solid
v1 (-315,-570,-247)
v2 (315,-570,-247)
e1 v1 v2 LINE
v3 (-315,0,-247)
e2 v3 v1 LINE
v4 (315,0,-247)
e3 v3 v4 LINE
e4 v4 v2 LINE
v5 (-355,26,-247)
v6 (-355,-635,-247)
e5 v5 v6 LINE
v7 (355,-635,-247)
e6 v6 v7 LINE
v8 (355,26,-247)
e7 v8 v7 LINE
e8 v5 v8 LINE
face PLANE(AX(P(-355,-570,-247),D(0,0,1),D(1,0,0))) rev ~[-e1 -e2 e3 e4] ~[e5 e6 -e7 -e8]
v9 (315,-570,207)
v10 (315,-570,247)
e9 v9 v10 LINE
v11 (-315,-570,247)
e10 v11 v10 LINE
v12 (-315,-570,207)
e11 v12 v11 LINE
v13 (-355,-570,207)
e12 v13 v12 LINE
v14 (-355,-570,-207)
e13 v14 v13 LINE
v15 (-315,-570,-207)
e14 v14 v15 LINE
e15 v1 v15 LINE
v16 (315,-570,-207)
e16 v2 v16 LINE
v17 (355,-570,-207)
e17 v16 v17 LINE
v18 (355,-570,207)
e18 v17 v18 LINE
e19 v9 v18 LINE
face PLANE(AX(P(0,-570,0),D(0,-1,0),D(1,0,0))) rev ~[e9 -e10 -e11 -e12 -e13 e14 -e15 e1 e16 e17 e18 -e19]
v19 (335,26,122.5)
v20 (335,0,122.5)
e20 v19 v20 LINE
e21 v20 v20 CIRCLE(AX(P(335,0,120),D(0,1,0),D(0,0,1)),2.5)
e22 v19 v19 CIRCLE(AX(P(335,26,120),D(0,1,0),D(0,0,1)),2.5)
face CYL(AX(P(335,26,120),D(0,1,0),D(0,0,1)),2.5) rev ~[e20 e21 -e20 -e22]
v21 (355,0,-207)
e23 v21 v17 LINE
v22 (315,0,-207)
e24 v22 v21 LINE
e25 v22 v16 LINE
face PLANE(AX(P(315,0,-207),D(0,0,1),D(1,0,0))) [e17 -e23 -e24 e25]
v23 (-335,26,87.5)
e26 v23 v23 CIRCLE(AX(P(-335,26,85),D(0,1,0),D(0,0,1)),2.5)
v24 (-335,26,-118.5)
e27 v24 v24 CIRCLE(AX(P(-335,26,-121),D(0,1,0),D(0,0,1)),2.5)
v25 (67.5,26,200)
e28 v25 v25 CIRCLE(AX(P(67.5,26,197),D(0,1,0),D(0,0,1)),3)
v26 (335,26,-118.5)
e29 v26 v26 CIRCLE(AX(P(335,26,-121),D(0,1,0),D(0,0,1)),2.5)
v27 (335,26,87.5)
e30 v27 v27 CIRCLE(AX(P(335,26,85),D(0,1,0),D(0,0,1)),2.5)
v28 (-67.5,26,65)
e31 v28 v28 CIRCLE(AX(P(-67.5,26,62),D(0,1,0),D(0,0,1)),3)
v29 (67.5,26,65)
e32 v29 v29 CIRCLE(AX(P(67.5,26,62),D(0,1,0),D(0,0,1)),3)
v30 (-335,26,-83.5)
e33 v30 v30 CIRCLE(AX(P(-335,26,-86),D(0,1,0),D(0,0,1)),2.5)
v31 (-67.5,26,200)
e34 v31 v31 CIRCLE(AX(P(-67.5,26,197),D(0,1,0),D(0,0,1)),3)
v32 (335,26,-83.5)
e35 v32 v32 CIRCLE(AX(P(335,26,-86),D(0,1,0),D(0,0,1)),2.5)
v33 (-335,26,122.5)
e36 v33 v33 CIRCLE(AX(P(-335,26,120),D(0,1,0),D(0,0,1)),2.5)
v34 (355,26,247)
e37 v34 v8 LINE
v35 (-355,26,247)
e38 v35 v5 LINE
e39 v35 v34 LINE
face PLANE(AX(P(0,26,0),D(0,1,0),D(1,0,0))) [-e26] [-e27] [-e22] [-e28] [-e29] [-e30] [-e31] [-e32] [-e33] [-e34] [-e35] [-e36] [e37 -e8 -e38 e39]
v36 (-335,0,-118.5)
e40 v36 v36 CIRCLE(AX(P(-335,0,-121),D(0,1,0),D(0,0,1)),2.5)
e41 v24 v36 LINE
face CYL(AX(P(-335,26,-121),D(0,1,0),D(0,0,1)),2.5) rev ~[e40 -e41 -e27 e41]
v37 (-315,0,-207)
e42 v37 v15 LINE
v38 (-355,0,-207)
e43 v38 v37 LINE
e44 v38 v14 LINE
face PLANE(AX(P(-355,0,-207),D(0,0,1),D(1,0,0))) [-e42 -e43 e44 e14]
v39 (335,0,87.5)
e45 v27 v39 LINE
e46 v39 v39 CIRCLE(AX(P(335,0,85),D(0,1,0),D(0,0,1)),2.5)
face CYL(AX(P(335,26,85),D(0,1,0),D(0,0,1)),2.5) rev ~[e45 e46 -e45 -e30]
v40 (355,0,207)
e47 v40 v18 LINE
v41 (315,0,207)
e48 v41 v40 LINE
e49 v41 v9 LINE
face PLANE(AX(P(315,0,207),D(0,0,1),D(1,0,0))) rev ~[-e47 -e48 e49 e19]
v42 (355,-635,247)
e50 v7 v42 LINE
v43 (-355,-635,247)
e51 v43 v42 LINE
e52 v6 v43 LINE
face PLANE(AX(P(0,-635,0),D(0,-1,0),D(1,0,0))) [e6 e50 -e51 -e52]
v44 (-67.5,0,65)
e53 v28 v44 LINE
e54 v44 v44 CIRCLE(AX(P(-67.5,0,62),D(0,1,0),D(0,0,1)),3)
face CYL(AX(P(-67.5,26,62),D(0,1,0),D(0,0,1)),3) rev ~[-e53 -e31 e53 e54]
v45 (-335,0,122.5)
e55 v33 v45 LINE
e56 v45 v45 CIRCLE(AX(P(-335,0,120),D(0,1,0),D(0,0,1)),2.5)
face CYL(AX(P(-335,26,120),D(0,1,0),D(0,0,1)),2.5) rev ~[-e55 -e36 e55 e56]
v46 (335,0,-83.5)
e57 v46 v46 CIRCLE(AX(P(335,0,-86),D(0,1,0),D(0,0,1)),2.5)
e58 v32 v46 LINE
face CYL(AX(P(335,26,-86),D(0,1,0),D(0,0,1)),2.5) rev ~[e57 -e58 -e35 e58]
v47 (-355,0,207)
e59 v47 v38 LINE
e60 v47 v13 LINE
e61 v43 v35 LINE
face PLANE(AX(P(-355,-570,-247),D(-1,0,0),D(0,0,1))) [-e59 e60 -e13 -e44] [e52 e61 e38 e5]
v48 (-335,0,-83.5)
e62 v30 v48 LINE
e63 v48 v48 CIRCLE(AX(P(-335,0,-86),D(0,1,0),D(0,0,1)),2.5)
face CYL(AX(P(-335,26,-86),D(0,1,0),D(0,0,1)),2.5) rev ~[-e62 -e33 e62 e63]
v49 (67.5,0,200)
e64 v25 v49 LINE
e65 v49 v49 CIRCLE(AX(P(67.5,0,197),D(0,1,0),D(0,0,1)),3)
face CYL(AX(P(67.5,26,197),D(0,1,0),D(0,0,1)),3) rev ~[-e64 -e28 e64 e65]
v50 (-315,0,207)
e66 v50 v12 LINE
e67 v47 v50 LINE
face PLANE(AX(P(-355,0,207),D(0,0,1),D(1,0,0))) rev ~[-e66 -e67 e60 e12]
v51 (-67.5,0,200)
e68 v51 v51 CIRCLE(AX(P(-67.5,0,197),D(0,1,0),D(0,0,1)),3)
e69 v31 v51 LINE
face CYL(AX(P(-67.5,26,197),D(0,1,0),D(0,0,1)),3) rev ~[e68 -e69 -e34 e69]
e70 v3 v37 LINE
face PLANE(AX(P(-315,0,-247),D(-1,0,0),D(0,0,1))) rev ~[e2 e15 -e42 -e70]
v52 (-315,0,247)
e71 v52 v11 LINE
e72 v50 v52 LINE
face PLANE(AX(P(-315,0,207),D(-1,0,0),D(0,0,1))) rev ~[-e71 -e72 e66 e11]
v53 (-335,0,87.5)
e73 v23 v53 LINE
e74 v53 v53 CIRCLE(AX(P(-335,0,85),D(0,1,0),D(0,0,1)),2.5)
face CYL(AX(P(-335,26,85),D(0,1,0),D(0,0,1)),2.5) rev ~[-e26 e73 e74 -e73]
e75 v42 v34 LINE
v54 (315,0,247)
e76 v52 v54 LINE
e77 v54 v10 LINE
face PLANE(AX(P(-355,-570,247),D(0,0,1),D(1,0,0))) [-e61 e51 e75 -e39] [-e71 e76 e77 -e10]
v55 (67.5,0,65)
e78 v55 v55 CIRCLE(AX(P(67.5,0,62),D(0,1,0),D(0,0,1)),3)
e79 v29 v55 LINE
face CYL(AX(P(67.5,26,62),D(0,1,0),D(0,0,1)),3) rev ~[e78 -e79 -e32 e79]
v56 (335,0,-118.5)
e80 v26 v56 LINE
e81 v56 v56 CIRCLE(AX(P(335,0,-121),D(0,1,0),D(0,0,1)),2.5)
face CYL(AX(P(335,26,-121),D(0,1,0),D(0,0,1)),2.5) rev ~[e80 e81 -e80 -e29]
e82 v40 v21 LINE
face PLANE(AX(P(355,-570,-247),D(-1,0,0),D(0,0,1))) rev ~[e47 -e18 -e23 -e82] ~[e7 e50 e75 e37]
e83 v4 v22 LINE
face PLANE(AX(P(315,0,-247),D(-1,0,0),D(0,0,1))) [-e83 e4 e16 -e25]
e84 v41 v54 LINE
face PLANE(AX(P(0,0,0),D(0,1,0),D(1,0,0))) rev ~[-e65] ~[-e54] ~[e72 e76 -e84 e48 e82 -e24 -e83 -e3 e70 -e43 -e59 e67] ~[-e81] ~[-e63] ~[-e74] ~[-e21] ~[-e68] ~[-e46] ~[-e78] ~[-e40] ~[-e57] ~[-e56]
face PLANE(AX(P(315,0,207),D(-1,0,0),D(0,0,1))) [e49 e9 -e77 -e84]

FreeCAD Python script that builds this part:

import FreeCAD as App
import Part
import Sketcher

V = App.Vector


def add_polygon(sketch, points):
    """Adds a closed chain of lines whose ends are joined by coincident constraints."""
    first, n = sketch.GeometryCount, len(points)
    for a, b in zip(points, points[1:] + points[:1]):
        sketch.addGeometry(Part.LineSegment(App.Vector(*a, 0), App.Vector(*b, 0)), False)
    for i in range(n):
        sketch.addConstraint(Sketcher.Constraint("Coincident", first + i, 2, first + (i + 1) % n, 1))

doc = App.newDocument("Part")
body = doc.addObject("PartDesign::Body", "Body")

sketch1 = body.newObject("Sketcher::SketchObject", "Sketch")
sketch1.AttachmentSupport = (doc.getObject("XZ_Plane"), [""])
sketch1.MapMode = "FlatFace"
add_polygon(sketch1, [(-355, -247), (-355, 247), (355, 247), (355, -247)])
sketch1.addConstraint([
    Sketcher.Constraint("Vertical", 0),
    Sketcher.Constraint("Horizontal", 1),
    Sketcher.Constraint("Vertical", 2),
    Sketcher.Constraint("Horizontal", 3),
    Sketcher.Constraint("Symmetric", 0, 2, 2, 2, -1, 1),
    Sketcher.Constraint("DistanceX", 1, 1, 1, 2, 710.0),
    Sketcher.Constraint("DistanceY", 0, 1, 0, 2, 494.0),
])
pad1 = body.newObject("PartDesign::Pad", "Pad")
pad1.Profile = sketch1
pad1.Length = 26
pad1.Reversed = True

sketch2 = body.newObject("Sketcher::SketchObject", "Sketch001")
sketch2.AttachmentSupport = (doc.getObject("XZ_Plane"), [""])
sketch2.MapMode = "FlatFace"
sketch2.AttachmentOffset = App.Placement(V(0, 0, -26), App.Rotation())
sketch2.addGeometry([
    Part.Circle(V(-67.5, 62, 0), V(0, 0, 1), 3),
    Part.Circle(V(-67.5, 197, 0), V(0, 0, 1), 3),
    Part.Circle(V(67.5, 197, 0), V(0, 0, 1), 3),
    Part.Circle(V(67.5, 62, 0), V(0, 0, 1), 3),
], False)
sketch2.addConstraint([
    Sketcher.Constraint("Equal", 0, 1),
    Sketcher.Constraint("Equal", 1, 2),
    Sketcher.Constraint("Equal", 2, 3),
    Sketcher.Constraint("Symmetric", 1, 3, 2, 3, -2),
    Sketcher.Constraint("Symmetric", 0, 3, 3, 3, -2),
    Sketcher.Constraint("Vertical", 0, 3, 1, 3),
    Sketcher.Constraint("Diameter", 0, 6.0),
    Sketcher.Constraint("DistanceY", -1, 1, 0, 3, 62.0),
    Sketcher.Constraint("DistanceY", -1, 1, 1, 3, 197.0),
    Sketcher.Constraint("DistanceX", 1, 3, 2, 3, 135.0),
])
pocket1 = body.newObject("PartDesign::Pocket", "Pocket")
pocket1.Profile = sketch2
pocket1.Type = "ThroughAll"
pocket1.Reversed = True

sketch3 = body.newObject("Sketcher::SketchObject", "Sketch002")
sketch3.AttachmentSupport = (doc.getObject("XZ_Plane"), [""])
sketch3.MapMode = "FlatFace"
sketch3.AttachmentOffset = App.Placement(V(0, 0, -26), App.Rotation())
sketch3.addGeometry(Part.Circle(V(-335, -121, 0), V(0, 0, 1), 2.5), False)
sketch3.addConstraint([
    Sketcher.Constraint("Diameter", 0, 5.0),
    Sketcher.Constraint("DistanceX", 0, 3, -1, 1, 335.0),
    Sketcher.Constraint("DistanceY", 0, 3, -1, 1, 121.0),
])
pocket2 = body.newObject("PartDesign::Pocket", "Pocket001")
pocket2.Profile = sketch3
pocket2.Type = "UpToFirst"
pocket2.Reversed = True

sketch4 = body.newObject("Sketcher::SketchObject", "Sketch003")
sketch4.AttachmentSupport = (doc.getObject("XZ_Plane"), [""])
sketch4.MapMode = "FlatFace"
sketch4.AttachmentOffset = App.Placement(V(0, 0, -26), App.Rotation())
sketch4.addGeometry(Part.Circle(V(-335, -86, 0), V(0, 0, 1), 2.5), False)
sketch4.addConstraint([
    Sketcher.Constraint("Diameter", 0, 5.0),
    Sketcher.Constraint("DistanceX", 0, 3, -1, 1, 335.0),
    Sketcher.Constraint("DistanceY", 0, 3, -1, 1, 86.0),
])
pocket3 = body.newObject("PartDesign::Pocket", "Pocket002")
pocket3.Profile = sketch4
pocket3.Type = "UpToFirst"
pocket3.Reversed = True

sketch5 = body.newObject("Sketcher::SketchObject", "Sketch004")
sketch5.AttachmentSupport = (doc.getObject("XZ_Plane"), [""])
sketch5.MapMode = "FlatFace"
sketch5.AttachmentOffset = App.Placement(V(0, 0, -26), App.Rotation())
sketch5.addGeometry(Part.Circle(V(335, -86, 0), V(0, 0, 1), 2.5), False)
sketch5.addConstraint([
    Sketcher.Constraint("Diameter", 0, 5.0),
    Sketcher.Constraint("DistanceX", -1, 1, 0, 3, 335.0),
    Sketcher.Constraint("DistanceY", 0, 3, -1, 1, 86.0),
])
pocket4 = body.newObject("PartDesign::Pocket", "Pocket003")
pocket4.Profile = sketch5
pocket4.Type = "UpToFirst"
pocket4.Reversed = True

sketch6 = body.newObject("Sketcher::SketchObject", "Sketch005")
sketch6.AttachmentSupport = (doc.getObject("XZ_Plane"), [""])
sketch6.MapMode = "FlatFace"
sketch6.AttachmentOffset = App.Placement(V(0, 0, -26), App.Rotation())
sketch6.addGeometry(Part.Circle(V(335, -121, 0), V(0, 0, 1), 2.5), False)
sketch6.addConstraint([
    Sketcher.Constraint("Diameter", 0, 5.0),
    Sketcher.Constraint("DistanceX", -1, 1, 0, 3, 335.0),
    Sketcher.Constraint("DistanceY", 0, 3, -1, 1, 121.0),
])
pocket5 = body.newObject("PartDesign::Pocket", "Pocket004")
pocket5.Profile = sketch6
pocket5.Type = "UpToFirst"
pocket5.Reversed = True

sketch7 = body.newObject("Sketcher::SketchObject", "Sketch006")
sketch7.AttachmentSupport = (doc.getObject("XZ_Plane"), [""])
sketch7.MapMode = "FlatFace"
sketch7.AttachmentOffset = App.Placement(V(0, 0, -26), App.Rotation())
sketch7.addGeometry(Part.Circle(V(335, 85, 0), V(0, 0, 1), 2.5), False)
sketch7.addConstraint([
    Sketcher.Constraint("Diameter", 0, 5.0),
    Sketcher.Constraint("DistanceX", -1, 1, 0, 3, 335.0),
    Sketcher.Constraint("DistanceY", -1, 1, 0, 3, 85.0),
])
pocket6 = body.newObject("PartDesign::Pocket", "Pocket005")
pocket6.Profile = sketch7
pocket6.Type = "UpToFirst"
pocket6.Reversed = True

sketch8 = body.newObject("Sketcher::SketchObject", "Sketch007")
sketch8.AttachmentSupport = (doc.getObject("XZ_Plane"), [""])
sketch8.MapMode = "FlatFace"
sketch8.AttachmentOffset = App.Placement(V(0, 0, -26), App.Rotation())
sketch8.addGeometry(Part.Circle(V(335, 120, 0), V(0, 0, 1), 2.5), False)
sketch8.addConstraint([
    Sketcher.Constraint("Diameter", 0, 5.0),
    Sketcher.Constraint("DistanceX", -1, 1, 0, 3, 335.0),
    Sketcher.Constraint("DistanceY", -1, 1, 0, 3, 120.0),
])
pocket7 = body.newObject("PartDesign::Pocket", "Pocket006")
pocket7.Profile = sketch8
pocket7.Type = "UpToFirst"
pocket7.Reversed = True

sketch9 = body.newObject("Sketcher::SketchObject", "Sketch008")
sketch9.AttachmentSupport = (doc.getObject("XZ_Plane"), [""])
sketch9.MapMode = "FlatFace"
sketch9.AttachmentOffset = App.Placement(V(0, 0, -26), App.Rotation())
sketch9.addGeometry(Part.Circle(V(-335, 85, 0), V(0, 0, 1), 2.5), False)
sketch9.addConstraint([
    Sketcher.Constraint("Diameter", 0, 5.0),
    Sketcher.Constraint("DistanceX", 0, 3, -1, 1, 335.0),
    Sketcher.Constraint("DistanceY", -1, 1, 0, 3, 85.0),
])
pocket8 = body.newObject("PartDesign::Pocket", "Pocket007")
pocket8.Profile = sketch9
pocket8.Type = "UpToFirst"
pocket8.Reversed = True

sketch10 = body.newObject("Sketcher::SketchObject", "Sketch009")
sketch10.AttachmentSupport = (doc.getObject("XZ_Plane"), [""])
sketch10.MapMode = "FlatFace"
sketch10.AttachmentOffset = App.Placement(V(0, 0, -26), App.Rotation())
sketch10.addGeometry(Part.Circle(V(-335, 120, 0), V(0, 0, 1), 2.5), False)
sketch10.addConstraint([
    Sketcher.Constraint("Diameter", 0, 5.0),
    Sketcher.Constraint("DistanceX", 0, 3, -1, 1, 335.0),
    Sketcher.Constraint("DistanceY", -1, 1, 0, 3, 120.0),
])
pocket9 = body.newObject("PartDesign::Pocket", "Pocket008")
pocket9.Profile = sketch10
pocket9.Type = "UpToFirst"
pocket9.Reversed = True

sketch11 = body.newObject("Sketcher::SketchObject", "Sketch010")
sketch11.AttachmentSupport = (doc.getObject("XZ_Plane"), [""])
sketch11.MapMode = "FlatFace"
add_polygon(sketch11, [(-355, 247), (-355, 207), (-315, 207), (-315, 247)])
add_polygon(sketch11, [(-355, -207), (-355, -247), (-315, -247), (-315, -207)])
add_polygon(sketch11, [(315, 247), (315, 207), (355, 207), (355, 247)])
add_polygon(sketch11, [(315, -207), (315, -247), (355, -247), (355, -207)])
sketch11.addConstraint([
    Sketcher.Constraint("Vertical", 0),
    Sketcher.Constraint("Horizontal", 1),
    Sketcher.Constraint("Vertical", 2),
    Sketcher.Constraint("Horizontal", 3),
    Sketcher.Constraint("Vertical", 4),
    Sketcher.Constraint("Horizontal", 5),
    Sketcher.Constraint("Vertical", 6),
    Sketcher.Constraint("Horizontal", 7),
    Sketcher.Constraint("Vertical", 8),
    Sketcher.Constraint("Horizontal", 9),
    Sketcher.Constraint("Vertical", 10),
    Sketcher.Constraint("Horizontal", 11),
    Sketcher.Constraint("Vertical", 12),
    Sketcher.Constraint("Horizontal", 13),
    Sketcher.Constraint("Vertical", 14),
    Sketcher.Constraint("Horizontal", 15),
    Sketcher.Constraint("Symmetric", 6, 2, 8, 2, -1, 1),
    Sketcher.Constraint("Symmetric", 4, 2, 10, 2, -1, 1),
    Sketcher.Constraint("Symmetric", 2, 2, 12, 2, -1, 1),
    Sketcher.Constraint("Symmetric", 0, 2, 14, 2, -1, 1),
    Sketcher.Constraint("Symmetric", 1, 2, 8, 2, -2),
    Sketcher.Constraint("Symmetric", 3, 2, 10, 2, -2),
    Sketcher.Constraint("Equal", 15, 0),
    Sketcher.Constraint("DistanceX", 1, 1, 1, 2, 40.0),
    Sketcher.Constraint("DistanceX", 0, 2, -1, 1, 355.0),
    Sketcher.Constraint("DistanceY", -1, 1, 0, 2, 207.0),
])
pad2 = body.newObject("PartDesign::Pad", "Pad001")
pad2.Profile = sketch11
pad2.Length = 570

sketch12 = body.newObject("Sketcher::SketchObject", "Sketch011")
sketch12.AttachmentSupport = (doc.getObject("XZ_Plane"), [""])
sketch12.MapMode = "FlatFace"
sketch12.AttachmentOffset = App.Placement(V(0, 0, 570), App.Rotation())
add_polygon(sketch12, [(-355, 247), (-355, -247), (355, -247), (355, 247)])
sketch12.addConstraint([
    Sketcher.Constraint("Vertical", 0),
    Sketcher.Constraint("Horizontal", 1),
    Sketcher.Constraint("Vertical", 2),
    Sketcher.Constraint("Horizontal", 3),
    Sketcher.Constraint("Symmetric", 0, 2, 2, 2, -1, 1),
    Sketcher.Constraint("DistanceX", 1, 1, 1, 2, 710.0),
    Sketcher.Constraint("DistanceY", 0, 2, 0, 1, 494.0),
])
pad3 = body.newObject("PartDesign::Pad", "Pad002")
pad3.Profile = sketch12
pad3.Length = 65

doc.recompute()
